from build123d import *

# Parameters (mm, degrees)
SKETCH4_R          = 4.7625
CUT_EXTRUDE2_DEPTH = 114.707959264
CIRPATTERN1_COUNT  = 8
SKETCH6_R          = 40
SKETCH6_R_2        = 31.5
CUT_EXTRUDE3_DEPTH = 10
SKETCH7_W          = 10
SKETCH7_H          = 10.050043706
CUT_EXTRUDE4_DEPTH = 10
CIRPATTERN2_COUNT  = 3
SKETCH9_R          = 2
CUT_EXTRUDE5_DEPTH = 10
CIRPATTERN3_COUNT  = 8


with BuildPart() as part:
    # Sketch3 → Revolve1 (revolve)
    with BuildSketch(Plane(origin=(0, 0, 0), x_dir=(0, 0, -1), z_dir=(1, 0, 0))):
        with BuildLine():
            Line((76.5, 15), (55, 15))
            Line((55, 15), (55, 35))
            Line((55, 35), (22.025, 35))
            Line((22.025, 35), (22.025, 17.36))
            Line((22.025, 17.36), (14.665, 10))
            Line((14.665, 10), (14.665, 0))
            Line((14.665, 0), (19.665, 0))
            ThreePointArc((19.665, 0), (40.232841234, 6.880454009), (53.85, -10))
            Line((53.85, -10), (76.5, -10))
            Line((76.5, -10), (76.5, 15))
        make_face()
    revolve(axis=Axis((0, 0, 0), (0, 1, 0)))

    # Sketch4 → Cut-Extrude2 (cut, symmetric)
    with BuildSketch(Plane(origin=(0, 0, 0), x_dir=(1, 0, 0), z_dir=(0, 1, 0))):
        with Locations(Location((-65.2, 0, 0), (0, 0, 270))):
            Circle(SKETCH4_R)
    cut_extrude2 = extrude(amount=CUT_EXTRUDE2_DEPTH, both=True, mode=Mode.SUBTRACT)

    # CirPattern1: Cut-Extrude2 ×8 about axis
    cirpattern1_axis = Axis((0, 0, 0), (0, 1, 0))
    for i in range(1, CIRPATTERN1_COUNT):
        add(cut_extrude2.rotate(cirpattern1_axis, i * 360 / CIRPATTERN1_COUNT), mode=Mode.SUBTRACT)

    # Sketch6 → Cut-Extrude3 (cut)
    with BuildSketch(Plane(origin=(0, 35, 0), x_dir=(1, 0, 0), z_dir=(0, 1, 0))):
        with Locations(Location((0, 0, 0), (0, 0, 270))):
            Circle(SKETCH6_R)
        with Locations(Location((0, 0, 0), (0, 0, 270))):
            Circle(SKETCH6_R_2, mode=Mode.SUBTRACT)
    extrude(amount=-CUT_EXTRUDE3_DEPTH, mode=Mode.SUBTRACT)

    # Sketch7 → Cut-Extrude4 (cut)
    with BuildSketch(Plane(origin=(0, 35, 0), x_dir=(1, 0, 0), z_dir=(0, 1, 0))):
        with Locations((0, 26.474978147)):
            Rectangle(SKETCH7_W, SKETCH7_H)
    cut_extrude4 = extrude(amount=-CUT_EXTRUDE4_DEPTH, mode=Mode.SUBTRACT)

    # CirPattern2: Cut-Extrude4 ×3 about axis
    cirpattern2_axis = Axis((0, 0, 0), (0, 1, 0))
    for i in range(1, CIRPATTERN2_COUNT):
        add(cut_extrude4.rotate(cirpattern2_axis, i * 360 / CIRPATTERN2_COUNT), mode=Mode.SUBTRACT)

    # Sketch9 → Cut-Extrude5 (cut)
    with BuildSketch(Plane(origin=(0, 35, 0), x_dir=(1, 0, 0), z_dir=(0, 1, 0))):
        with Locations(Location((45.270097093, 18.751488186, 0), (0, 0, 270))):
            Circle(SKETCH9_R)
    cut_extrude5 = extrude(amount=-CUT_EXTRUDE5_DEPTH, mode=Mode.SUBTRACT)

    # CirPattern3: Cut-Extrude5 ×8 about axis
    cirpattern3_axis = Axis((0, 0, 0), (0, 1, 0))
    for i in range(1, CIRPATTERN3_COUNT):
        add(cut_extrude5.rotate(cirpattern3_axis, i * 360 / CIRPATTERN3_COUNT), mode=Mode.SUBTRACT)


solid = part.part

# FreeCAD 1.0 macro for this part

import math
import FreeCAD as App
import Part
import Sketcher
Q = App.Units.Quantity


def add_polygon(sketch, points):
    """Adds a closed chain of lines whose ends are joined by coincident constraints."""
    first, n = sketch.GeometryCount, len(points)
    for a, b in zip(points, points[1:] + points[:1]):
        sketch.addGeometry(Part.LineSegment(App.Vector(*a, 0), App.Vector(*b, 0)), False)
    for i in range(n):
        sketch.addConstraint(Sketcher.Constraint("Coincident", first + i, 2, first + (i + 1) % n, 1))

doc = App.newDocument("Part")
body = doc.addObject("PartDesign::Body", "Body")

# Sketch on YZ plane
sketch1 = doc.addObject("Sketcher::SketchObject", "Sketch")
body.addObject(sketch1)
sketch1.AttachmentSupport = (doc.YZ_Plane, [""])
sketch1.MapMode = "FlatFace"
sketch1.addGeometry([
    Part.LineSegment(App.Vector(15, -76.5, 0), App.Vector(15, -55, 0)),  # 0
    Part.LineSegment(App.Vector(15, -55, 0), App.Vector(35, -55, 0)),  # 1
    Part.LineSegment(App.Vector(35, -55, 0), App.Vector(35, -22.025, 0)),  # 2
    Part.LineSegment(App.Vector(35, -22.025, 0), App.Vector(17.36, -22.025, 0)),  # 3
    Part.LineSegment(App.Vector(17.36, -22.025, 0), App.Vector(10, -14.665, 0)),  # 4
    Part.LineSegment(App.Vector(10, -14.665, 0), App.Vector(0, -14.665, 0)),  # 5
    Part.LineSegment(App.Vector(0, -14.665, 0), App.Vector(0, -19.665, 0)),  # 6
    Part.ArcOfCircle(Part.Circle(App.Vector(-11.355328, -34.898402, 0), App.Vector(0, 0, 1), 19), math.radians(-85.909442), math.radians(53.298306)),  # 7
    Part.LineSegment(App.Vector(-10, -53.85, 0), App.Vector(-10, -76.5, 0)),  # 8
    Part.LineSegment(App.Vector(-10, -76.5, 0), App.Vector(15, -76.5, 0)),  # 9
], False)
sketch1.addConstraint([
    Sketcher.Constraint("Coincident", 0, 2, 1, 1),
    Sketcher.Constraint("Coincident", 1, 2, 2, 1),
    Sketcher.Constraint("Coincident", 2, 2, 3, 1),
    Sketcher.Constraint("Coincident", 3, 2, 4, 1),
    Sketcher.Constraint("Coincident", 4, 2, 5, 1),
    Sketcher.Constraint("Coincident", 5, 2, 6, 1),
    Sketcher.Constraint("Coincident", 6, 2, 7, 2),
    Sketcher.Constraint("Coincident", 7, 1, 8, 1),
    Sketcher.Constraint("Coincident", 8, 2, 9, 1),
    Sketcher.Constraint("Coincident", 9, 2, 0, 1),
    Sketcher.Constraint("Vertical", 0),
    Sketcher.Constraint("Horizontal", 1),
    Sketcher.Constraint("Vertical", 2),
    Sketcher.Constraint("Horizontal", 3),
    Sketcher.Constraint("Horizontal", 5),
    Sketcher.Constraint("Vertical", 6),
    Sketcher.Constraint("Vertical", 8),
    Sketcher.Constraint("Horizontal", 9),
    Sketcher.Constraint("PointOnObject", 5, 2, -2),
    Sketcher.Constraint("Radius", 7, 19.0),
    Sketcher.Constraint("DistanceX", 1, 1, 1, 2, 20.0),
    Sketcher.Constraint("DistanceX", 5, 2, 5, 1, 10.0),
    Sketcher.Constraint("DistanceX", 9, 1, 9, 2, 25.0),
    Sketcher.Constraint("DistanceY", 6, 2, 6, 1, 5.0),
    Sketcher.Constraint("Angle", 4, Q("135 deg")),
    Sketcher.Constraint("DistanceY", 0, 1, 0, 2, 21.5),
    Sketcher.Constraint("DistanceX", -1, 1, 0, 2, 15.0),
    Sketcher.Constraint("DistanceY", 0, 2, -1, 1, 55.0),
    Sketcher.Constraint("DistanceX", 3, 2, 3, 1, 17.64),
    Sketcher.Constraint("DistanceY", 8, 2, 8, 1, 22.65),
    Sketcher.Constraint("DistanceY", 2, 1, 2, 2, 32.975),
])
revolution = doc.addObject("PartDesign::Revolution", "Revolution")
body.addObject(revolution)
revolution.Profile = sketch1
revolution.ReferenceAxis = (sketch1, ["H_Axis"])
revolution.Angle = 360

# Sketch on XZ plane
sketch2 = doc.addObject("Sketcher::SketchObject", "Sketch001")
body.addObject(sketch2)
sketch2.AttachmentSupport = (doc.XZ_Plane, [""])
sketch2.MapMode = "FlatFace"
sketch2.addGeometry(Part.Circle(App.Vector(-65.2, 0, 0), App.Vector(0, 0, 1), 4.7625), False)
sketch2.addConstraint([
    Sketcher.Constraint("PointOnObject", 0, 3, -1),
    Sketcher.Constraint("Diameter", 0, 9.525),
    Sketcher.Constraint("DistanceX", 0, 3, -1, 1, 65.2),
])
pocket1 = doc.addObject("PartDesign::Pocket", "Pocket")
body.addObject(pocket1)
pocket1.Profile = sketch2
pocket1.Length = 229.415919
pocket1.Midplane = True
doc.recompute()

polarpattern = doc.addObject("PartDesign::PolarPattern", "PolarPattern")
body.addObject(polarpattern)
polarpattern.Originals = [pocket1]
polarpattern.Axis = (doc.Y_Axis, [""])
polarpattern.Angle = 360
polarpattern.Occurrences = 8
body.Tip = polarpattern

# Sketch on XZ plane
sketch3 = doc.addObject("Sketcher::SketchObject", "Sketch002")
body.addObject(sketch3)
sketch3.AttachmentSupport = (doc.XZ_Plane, [""])
sketch3.MapMode = "FlatFace"
sketch3.AttachmentOffset = App.Placement(App.Vector(0, 0, -35), App.Rotation())
sketch3.addGeometry([
    Part.Circle(App.Vector(0, 0, 0), App.Vector(0, 0, 1), 40),
    Part.Circle(App.Vector(0, 0, 0), App.Vector(0, 0, 1), 31.5),
], False)
sketch3.addConstraint([
    Sketcher.Constraint("Coincident", 0, 3, -1, 1),
    Sketcher.Constraint("Coincident", 1, 3, -1, 1),
    Sketcher.Constraint("Diameter", 0, 80.0),
    Sketcher.Constraint("Diameter", 1, 63.0),
])
pocket2 = doc.addObject("PartDesign::Pocket", "Pocket001")
body.addObject(pocket2)
pocket2.Profile = sketch3
pocket2.Length = 10
pocket2.Reversed = True

# Sketch on XZ plane
sketch4 = doc.addObject("Sketcher::SketchObject", "Sketch003")
body.addObject(sketch4)
sketch4.AttachmentSupport = (doc.XZ_Plane, [""])
sketch4.MapMode = "FlatFace"
sketch4.AttachmentOffset = App.Placement(App.Vector(0, 0, -35), App.Rotation())
add_polygon(sketch4, [(-5, -31.5), (-5, -21.449956), (5, -21.449956), (5, -31.5)])  # lines 0-3
sketch4.addConstraint([
    Sketcher.Constraint("Vertical", 0),
    Sketcher.Constraint("Horizontal", 1),
    Sketcher.Constraint("Vertical", 2),
    Sketcher.Constraint("Horizontal", 3),
    Sketcher.Constraint("DistanceX", 1, 1, 1, 2, 10.0),
    Sketcher.Constraint("DistanceX", 0, 2, -1, 1, 5.0),
    Sketcher.Constraint("DistanceY", 2, 2, -1, 1, 31.5),
    Sketcher.Constraint("DistanceY", 0, 1, 0, 2, 10.050044),
])
pocket3 = doc.addObject("PartDesign::Pocket", "Pocket002")
body.addObject(pocket3)
pocket3.Profile = sketch4
pocket3.Length = 10
pocket3.Reversed = True
doc.recompute()

polarpattern2 = doc.addObject("PartDesign::PolarPattern", "PolarPattern001")
body.addObject(polarpattern2)
polarpattern2.Originals = [pocket3]
polarpattern2.Axis = (doc.Y_Axis, [""])
polarpattern2.Angle = 360
polarpattern2.Occurrences = 3
body.Tip = polarpattern2

# Sketch on XZ plane
sketch5 = doc.addObject("Sketcher::SketchObject", "Sketch004")
body.addObject(sketch5)
sketch5.AttachmentSupport = (doc.XZ_Plane, [""])
sketch5.MapMode = "FlatFace"
sketch5.AttachmentOffset = App.Placement(App.Vector(0, 0, -35), App.Rotation())
sketch5.addGeometry(Part.Circle(App.Vector(45.270097, -18.751488, 0), App.Vector(0, 0, 1), 2), False)
sketch5.addConstraint([
    Sketcher.Constraint("Diameter", 0, 4.0),
    Sketcher.Constraint("DistanceY", 0, 3, -1, 1, 18.751488),
    Sketcher.Constraint("DistanceX", -1, 1, 0, 3, 45.270097),
])
pocket4 = doc.addObject("PartDesign::Pocket", "Pocket003")
body.addObject(pocket4)
pocket4.Profile = sketch5
pocket4.Length = 10
pocket4.Reversed = True
doc.recompute()

polarpattern3 = doc.addObject("PartDesign::PolarPattern", "PolarPattern002")
body.addObject(polarpattern3)
polarpattern3.Originals = [pocket4]
polarpattern3.Axis = (doc.Y_Axis, [""])
polarpattern3.Angle = 360
polarpattern3.Occurrences = 8
body.Tip = polarpattern3

doc.recompute()
